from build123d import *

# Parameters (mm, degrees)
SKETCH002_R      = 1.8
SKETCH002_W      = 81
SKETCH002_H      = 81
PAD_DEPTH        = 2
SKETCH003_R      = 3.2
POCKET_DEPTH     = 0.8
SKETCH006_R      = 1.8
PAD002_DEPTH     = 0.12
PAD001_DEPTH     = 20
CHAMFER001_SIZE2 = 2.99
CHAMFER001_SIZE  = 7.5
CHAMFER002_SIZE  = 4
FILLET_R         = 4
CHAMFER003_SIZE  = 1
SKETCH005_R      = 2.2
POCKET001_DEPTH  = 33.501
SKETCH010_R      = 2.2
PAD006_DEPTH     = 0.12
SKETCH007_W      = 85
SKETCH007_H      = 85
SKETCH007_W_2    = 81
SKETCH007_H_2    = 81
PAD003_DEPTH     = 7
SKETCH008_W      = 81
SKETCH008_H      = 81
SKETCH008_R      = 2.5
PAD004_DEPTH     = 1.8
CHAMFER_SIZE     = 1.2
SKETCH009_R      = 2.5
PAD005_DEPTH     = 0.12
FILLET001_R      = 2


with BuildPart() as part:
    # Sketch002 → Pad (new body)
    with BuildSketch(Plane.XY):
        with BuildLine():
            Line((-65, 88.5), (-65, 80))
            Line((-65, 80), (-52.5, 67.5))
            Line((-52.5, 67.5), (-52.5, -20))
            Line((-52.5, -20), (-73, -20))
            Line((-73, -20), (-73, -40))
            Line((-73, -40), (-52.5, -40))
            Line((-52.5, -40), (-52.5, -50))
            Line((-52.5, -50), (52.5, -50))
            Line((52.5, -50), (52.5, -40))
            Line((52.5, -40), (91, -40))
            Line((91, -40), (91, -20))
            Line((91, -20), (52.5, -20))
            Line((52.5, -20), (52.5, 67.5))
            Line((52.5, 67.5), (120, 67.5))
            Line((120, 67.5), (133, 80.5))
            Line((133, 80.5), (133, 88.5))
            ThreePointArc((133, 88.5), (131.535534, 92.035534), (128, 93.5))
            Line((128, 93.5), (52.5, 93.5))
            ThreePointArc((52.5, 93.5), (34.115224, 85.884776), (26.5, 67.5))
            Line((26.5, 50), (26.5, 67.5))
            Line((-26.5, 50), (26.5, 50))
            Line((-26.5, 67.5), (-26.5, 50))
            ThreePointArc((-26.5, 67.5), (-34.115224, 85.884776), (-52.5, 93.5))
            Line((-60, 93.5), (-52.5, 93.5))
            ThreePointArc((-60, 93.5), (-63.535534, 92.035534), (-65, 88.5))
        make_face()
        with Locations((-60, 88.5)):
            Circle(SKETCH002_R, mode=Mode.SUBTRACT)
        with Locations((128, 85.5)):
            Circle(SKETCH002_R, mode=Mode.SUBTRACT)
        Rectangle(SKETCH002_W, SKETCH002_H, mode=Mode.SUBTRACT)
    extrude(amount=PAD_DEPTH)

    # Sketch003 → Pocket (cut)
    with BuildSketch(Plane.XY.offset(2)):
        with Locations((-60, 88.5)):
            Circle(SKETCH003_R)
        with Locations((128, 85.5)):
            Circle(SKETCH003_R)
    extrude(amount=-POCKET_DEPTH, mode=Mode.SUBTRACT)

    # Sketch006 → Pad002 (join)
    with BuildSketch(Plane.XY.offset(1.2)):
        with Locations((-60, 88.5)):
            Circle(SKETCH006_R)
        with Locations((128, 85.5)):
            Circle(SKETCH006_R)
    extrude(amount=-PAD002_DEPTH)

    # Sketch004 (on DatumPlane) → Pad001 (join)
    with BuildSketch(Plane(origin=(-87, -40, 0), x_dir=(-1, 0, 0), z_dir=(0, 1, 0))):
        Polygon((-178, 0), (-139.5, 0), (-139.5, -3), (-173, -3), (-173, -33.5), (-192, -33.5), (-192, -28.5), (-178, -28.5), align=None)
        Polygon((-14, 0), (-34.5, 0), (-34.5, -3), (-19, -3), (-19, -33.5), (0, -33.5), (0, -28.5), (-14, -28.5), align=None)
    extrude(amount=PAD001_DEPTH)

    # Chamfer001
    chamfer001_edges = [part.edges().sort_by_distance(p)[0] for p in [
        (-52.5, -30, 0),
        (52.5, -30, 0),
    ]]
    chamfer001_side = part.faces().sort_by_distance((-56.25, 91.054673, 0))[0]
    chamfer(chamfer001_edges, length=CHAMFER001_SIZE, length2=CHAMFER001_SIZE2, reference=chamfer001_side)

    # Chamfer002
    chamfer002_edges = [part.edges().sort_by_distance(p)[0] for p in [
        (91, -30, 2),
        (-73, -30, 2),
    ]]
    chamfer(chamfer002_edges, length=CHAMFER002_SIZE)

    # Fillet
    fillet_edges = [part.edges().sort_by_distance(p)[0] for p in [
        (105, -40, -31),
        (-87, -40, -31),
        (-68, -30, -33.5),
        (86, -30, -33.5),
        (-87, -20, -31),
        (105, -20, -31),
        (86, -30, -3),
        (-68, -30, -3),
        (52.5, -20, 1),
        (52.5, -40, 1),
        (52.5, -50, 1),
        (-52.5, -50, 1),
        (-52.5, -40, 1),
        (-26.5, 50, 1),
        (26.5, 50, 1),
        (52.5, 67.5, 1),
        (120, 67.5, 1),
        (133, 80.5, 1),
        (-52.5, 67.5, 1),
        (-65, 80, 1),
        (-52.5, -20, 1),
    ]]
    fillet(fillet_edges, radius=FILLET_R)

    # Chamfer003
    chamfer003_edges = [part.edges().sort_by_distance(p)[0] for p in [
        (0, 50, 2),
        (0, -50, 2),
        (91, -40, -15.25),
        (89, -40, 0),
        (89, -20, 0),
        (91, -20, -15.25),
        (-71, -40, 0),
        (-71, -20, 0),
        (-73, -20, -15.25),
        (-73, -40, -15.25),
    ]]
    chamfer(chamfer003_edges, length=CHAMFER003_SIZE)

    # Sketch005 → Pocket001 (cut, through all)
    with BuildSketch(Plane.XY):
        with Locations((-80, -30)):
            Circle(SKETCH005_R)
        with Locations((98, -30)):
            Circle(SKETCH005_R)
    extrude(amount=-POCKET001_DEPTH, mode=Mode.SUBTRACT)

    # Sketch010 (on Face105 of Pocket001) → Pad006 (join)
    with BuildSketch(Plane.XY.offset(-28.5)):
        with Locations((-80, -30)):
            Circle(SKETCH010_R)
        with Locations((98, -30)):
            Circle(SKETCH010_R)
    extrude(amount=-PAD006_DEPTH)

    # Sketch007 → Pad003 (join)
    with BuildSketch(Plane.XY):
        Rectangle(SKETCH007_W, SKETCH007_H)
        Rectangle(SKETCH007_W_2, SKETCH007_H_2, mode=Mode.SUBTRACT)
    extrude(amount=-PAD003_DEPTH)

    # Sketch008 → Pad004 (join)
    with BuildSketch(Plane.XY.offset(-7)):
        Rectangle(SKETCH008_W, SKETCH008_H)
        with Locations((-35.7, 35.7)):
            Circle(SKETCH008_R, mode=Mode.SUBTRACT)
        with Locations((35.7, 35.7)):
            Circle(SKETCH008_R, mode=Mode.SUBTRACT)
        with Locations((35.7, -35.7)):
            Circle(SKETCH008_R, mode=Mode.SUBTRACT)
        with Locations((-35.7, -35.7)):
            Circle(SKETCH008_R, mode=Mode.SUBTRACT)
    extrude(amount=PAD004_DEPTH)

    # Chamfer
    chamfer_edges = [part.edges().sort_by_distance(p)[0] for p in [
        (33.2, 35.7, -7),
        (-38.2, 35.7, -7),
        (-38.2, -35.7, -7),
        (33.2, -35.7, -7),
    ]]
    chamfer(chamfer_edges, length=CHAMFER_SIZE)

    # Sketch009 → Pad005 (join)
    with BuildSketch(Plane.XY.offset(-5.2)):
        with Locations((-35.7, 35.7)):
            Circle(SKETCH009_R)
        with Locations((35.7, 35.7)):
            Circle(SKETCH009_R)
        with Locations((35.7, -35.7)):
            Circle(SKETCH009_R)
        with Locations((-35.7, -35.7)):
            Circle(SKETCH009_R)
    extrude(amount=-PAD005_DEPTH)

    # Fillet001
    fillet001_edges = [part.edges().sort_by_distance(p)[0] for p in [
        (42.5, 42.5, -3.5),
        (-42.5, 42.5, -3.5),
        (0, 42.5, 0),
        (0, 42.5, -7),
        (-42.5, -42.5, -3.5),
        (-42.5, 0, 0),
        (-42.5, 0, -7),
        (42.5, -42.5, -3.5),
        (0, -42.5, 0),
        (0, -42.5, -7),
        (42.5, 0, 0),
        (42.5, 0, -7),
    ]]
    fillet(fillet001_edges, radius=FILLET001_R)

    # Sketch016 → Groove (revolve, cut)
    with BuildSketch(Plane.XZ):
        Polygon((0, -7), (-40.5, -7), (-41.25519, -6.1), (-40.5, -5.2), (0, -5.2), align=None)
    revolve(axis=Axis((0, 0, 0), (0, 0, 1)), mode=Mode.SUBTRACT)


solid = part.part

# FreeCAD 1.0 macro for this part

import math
import FreeCAD as App
import Part
import Sketcher
from FreeCAD import Vector
Q = App.Units.Quantity


def edges_at(feature, points):
    """Names of the edges that pass closest to the given points."""
    edges = feature.Shape.Edges
    near = lambda p: min(range(len(edges)), key=lambda i: edges[i].distToShape(Part.Vertex(*p))[0])
    return sorted({f"Edge{near(p) + 1}" for p in points})


def add_polygon(sketch, points):
    """Adds a closed chain of lines whose ends are joined by coincident constraints."""
    first, n = sketch.GeometryCount, len(points)
    for a, b in zip(points, points[1:] + points[:1]):
        sketch.addGeometry(Part.LineSegment(App.Vector(*a, 0), App.Vector(*b, 0)), False)
    for i in range(n):
        sketch.addConstraint(Sketcher.Constraint("Coincident", first + i, 2, first + (i + 1) % n, 1))

doc = App.newDocument("Part")
params = doc.addObject("Spreadsheet::Sheet", "Params")
for row, (alias, value) in enumerate([
    ("sketch1_radius", "5 mm"),
    ("sketch1_radius2", "26.000001 mm"),
    ("sketch1_diameter", "3.6 mm"),
    ("sketch1_width", "105 mm"),
    ("sketch1_width2", "81 mm"),
    ("pad1_length", "2 mm"),
    ("sketch2_diameter", "6.4 mm"),
    ("pocket1_length", "0.8 mm"),
    ("sketch3_diameter", "3.6 mm"),
    ("pad2_length", "0.12 mm"),
    ("sketch4_width", "14 mm"),
    ("sketch4_width2", "19 mm"),
    ("sketch4_height", "5 mm"),
    ("sketch4_height2", "3 mm"),
    ("sketch4_width3", "38.5 mm"),
    ("pad3_length", "20 mm"),
    ("chamfer_size", "7.5 mm"),
    ("chamfer_size2", "2.99 mm"),
    ("chamfer2_size", "4 mm"),
    ("fillet_radius", "4 mm"),
    ("chamfer3_size", "1 mm"),
    ("sketch5_diameter", "4.4 mm"),
    ("sketch6_diameter", "4.4 mm"),
    ("pad4_length", "0.12 mm"),
    ("sketch7_width", "85 mm"),
    ("sketch7_width2", "81 mm"),
    ("pad5_length", "7 mm"),
    ("sketch8_diameter", "5 mm"),
    ("sketch8_width", "81 mm"),
    ("pad6_length", "1.8 mm"),
    ("chamfer4_size", "1.2 mm"),
    ("sketch9_diameter", "5 mm"),
    ("pad7_length", "0.12 mm"),
    ("fillet2_radius", "2 mm"),
    ("sketch10_width", "40.5 mm"),
    ("sketch10_height", "1.8 mm"),
    ("groove_angle", "360 deg"),
], start=1):
    params.set(f"A{row}", alias)
    params.set(f"B{row}", "=" + value)
    params.setAlias(f"B{row}", alias)

body = doc.addObject("PartDesign::Body", "Body")

# Sketch on XY plane
sketch1 = body.newObject("Sketcher::SketchObject", "Sketch")
sketch1.AttachmentSupport = (doc.getObject("XY_Plane"), [""])
sketch1.MapMode = "FlatFace"
sketch1.addGeometry(Part.LineSegment(Vector(-65, 88.5, 0), Vector(-65, 80, 0)), False)  # 0
sketch1.addGeometry(Part.LineSegment(Vector(-65, 80, 0), Vector(-52.5, 67.5, 0)), False)  # 1
sketch1.addGeometry(Part.LineSegment(Vector(-52.5, 67.5, 0), Vector(-52.5, -20, 0)), False)  # 2
sketch1.addGeometry(Part.LineSegment(Vector(-52.5, -20, 0), Vector(-73, -20, 0)), False)  # 3
sketch1.addGeometry(Part.LineSegment(Vector(-73, -20, 0), Vector(-73, -40, 0)), False)  # 4
sketch1.addGeometry(Part.LineSegment(Vector(-73, -40, 0), Vector(-52.5, -40, 0)), False)  # 5
sketch1.addGeometry(Part.LineSegment(Vector(-52.5, -40, 0), Vector(-52.5, -50, 0)), False)  # 6
sketch1.addGeometry(Part.LineSegment(Vector(-52.5, -50, 0), Vector(52.5, -50, 0)), False)  # 7
sketch1.addGeometry(Part.LineSegment(Vector(52.5, -50, 0), Vector(52.5, -40, 0)), False)  # 8
sketch1.addGeometry(Part.LineSegment(Vector(52.5, -40, 0), Vector(91, -40, 0)), False)  # 9
sketch1.addGeometry(Part.LineSegment(Vector(91, -40, 0), Vector(91, -20, 0)), False)  # 10
sketch1.addGeometry(Part.LineSegment(Vector(91, -20, 0), Vector(52.5, -20, 0)), False)  # 11
sketch1.addGeometry(Part.LineSegment(Vector(52.5, -20, 0), Vector(52.5, 67.5, 0)), False)  # 12
sketch1.addGeometry(Part.LineSegment(Vector(52.5, 67.5, 0), Vector(120, 67.5, 0)), False)  # 13
sketch1.addGeometry(Part.LineSegment(Vector(120, 67.5, 0), Vector(133, 80.5, 0)), False)  # 14
sketch1.addGeometry(Part.LineSegment(Vector(133, 80.5, 0), Vector(133, 88.5, 0)), False)  # 15
sketch1.addGeometry(Part.ArcOfCircle(Part.Circle(Vector(128, 88.5, 0), Vector(0, 0, 1), 5), math.radians(-0.000004), math.radians(90.000004)), False)  # 16
sketch1.addGeometry(Part.LineSegment(Vector(128, 93.5, 0), Vector(52.5, 93.5, 0)), False)  # 17
sketch1.addGeometry(Part.ArcOfCircle(Part.Circle(Vector(52.500001, 67.499999, 0), Vector(0, 0, 1), 26.000001), math.radians(90.000002), math.radians(179.999998)), False)  # 18
sketch1.addGeometry(Part.LineSegment(Vector(26.5, 67.5, 0), Vector(26.5, 50, 0)), False)  # 19
sketch1.addGeometry(Part.LineSegment(Vector(26.5, 50, 0), Vector(-26.5, 50, 0)), False)  # 20
sketch1.addGeometry(Part.LineSegment(Vector(-26.5, 50, 0), Vector(-26.5, 67.5, 0)), False)  # 21
sketch1.addGeometry(Part.ArcOfCircle(Part.Circle(Vector(-52.500001, 67.499999, 0), Vector(0, 0, 1), 26.000001), math.radians(0.000002), math.radians(89.999998)), False)  # 22
sketch1.addGeometry(Part.LineSegment(Vector(-52.5, 93.5, 0), Vector(-60, 93.5, 0)), False)  # 23
sketch1.addGeometry(Part.ArcOfCircle(Part.Circle(Vector(-60, 88.5, 0), Vector(0, 0, 1), 5), math.radians(89.999996), math.radians(180.000004)), False)  # 24
add_polygon(sketch1, [(40.5, -40.5), (-40.5, -40.5), (-40.5, 40.5), (40.5, 40.5)])  # lines 25-28
sketch1.addGeometry(Part.Circle(Vector(-60, 88.5, 0), Vector(0, 0, 1), 1.8), False)  # 29
sketch1.addGeometry(Part.Circle(Vector(128, 85.5, 0), Vector(0, 0, 1), 1.8), False)  # 30
sketch1.addConstraint(Sketcher.Constraint("Coincident", 0, 2, 1, 1))
sketch1.addConstraint(Sketcher.Constraint("Coincident", 1, 2, 2, 1))
sketch1.addConstraint(Sketcher.Constraint("Coincident", 2, 2, 3, 1))
sketch1.addConstraint(Sketcher.Constraint("Coincident", 3, 2, 4, 1))
sketch1.addConstraint(Sketcher.Constraint("Coincident", 4, 2, 5, 1))
sketch1.addConstraint(Sketcher.Constraint("Coincident", 5, 2, 6, 1))
sketch1.addConstraint(Sketcher.Constraint("Coincident", 6, 2, 7, 1))
sketch1.addConstraint(Sketcher.Constraint("Coincident", 7, 2, 8, 1))
sketch1.addConstraint(Sketcher.Constraint("Coincident", 8, 2, 9, 1))
sketch1.addConstraint(Sketcher.Constraint("Coincident", 9, 2, 10, 1))
sketch1.addConstraint(Sketcher.Constraint("Coincident", 10, 2, 11, 1))
sketch1.addConstraint(Sketcher.Constraint("Coincident", 11, 2, 12, 1))
sketch1.addConstraint(Sketcher.Constraint("Coincident", 12, 2, 13, 1))
sketch1.addConstraint(Sketcher.Constraint("Coincident", 13, 2, 14, 1))
sketch1.addConstraint(Sketcher.Constraint("Coincident", 14, 2, 15, 1))
sketch1.addConstraint(Sketcher.Constraint("Tangent", 15, 2, 16, 1))
sketch1.addConstraint(Sketcher.Constraint("Tangent", 16, 2, 17, 1))
sketch1.addConstraint(Sketcher.Constraint("Tangent", 17, 2, 18, 1))
sketch1.addConstraint(Sketcher.Constraint("Tangent", 18, 2, 19, 1))
sketch1.addConstraint(Sketcher.Constraint("Coincident", 19, 2, 20, 1))
sketch1.addConstraint(Sketcher.Constraint("Coincident", 20, 2, 21, 1))
sketch1.addConstraint(Sketcher.Constraint("Tangent", 21, 2, 22, 1))
sketch1.addConstraint(Sketcher.Constraint("Tangent", 22, 2, 23, 1))
sketch1.addConstraint(Sketcher.Constraint("Tangent", 23, 2, 24, 1))
sketch1.addConstraint(Sketcher.Constraint("Tangent", 24, 2, 0, 1))
sketch1.addConstraint(Sketcher.Constraint("Vertical", 0))
sketch1.addConstraint(Sketcher.Constraint("Vertical", 2))
sketch1.addConstraint(Sketcher.Constraint("Horizontal", 3))
sketch1.addConstraint(Sketcher.Constraint("Vertical", 4))
sketch1.addConstraint(Sketcher.Constraint("Horizontal", 5))
sketch1.addConstraint(Sketcher.Constraint("Vertical", 6))
sketch1.addConstraint(Sketcher.Constraint("Horizontal", 7))
sketch1.addConstraint(Sketcher.Constraint("Vertical", 8))
sketch1.addConstraint(Sketcher.Constraint("Horizontal", 9))
sketch1.addConstraint(Sketcher.Constraint("Vertical", 10))
sketch1.addConstraint(Sketcher.Constraint("Horizontal", 11))
sketch1.addConstraint(Sketcher.Constraint("Vertical", 12))
sketch1.addConstraint(Sketcher.Constraint("Horizontal", 13))
sketch1.addConstraint(Sketcher.Constraint("Vertical", 15))
sketch1.addConstraint(Sketcher.Constraint("Horizontal", 17))
sketch1.addConstraint(Sketcher.Constraint("Vertical", 19))
sketch1.addConstraint(Sketcher.Constraint("Horizontal", 20))
sketch1.addConstraint(Sketcher.Constraint("Vertical", 21))
sketch1.addConstraint(Sketcher.Constraint("Horizontal", 23))
sketch1.addConstraint(Sketcher.Constraint("Horizontal", 25))
sketch1.addConstraint(Sketcher.Constraint("Vertical", 26))
sketch1.addConstraint(Sketcher.Constraint("Horizontal", 27))
sketch1.addConstraint(Sketcher.Constraint("Vertical", 28))
sketch1.addConstraint(Sketcher.Constraint("Coincident", 29, 3, 24, 3))
sketch1.addConstraint(Sketcher.Constraint("Coincident", 1, 2, 22, 3))
sketch1.addConstraint(Sketcher.Constraint("Coincident", 12, 2, 18, 3))
sketch1.addConstraint(Sketcher.Constraint("Equal", 18, 22))
sketch1.addConstraint(Sketcher.Constraint("Equal", 16, 24))
sketch1.addConstraint(Sketcher.Constraint("Equal", 29, 30))
sketch1.addConstraint(Sketcher.Constraint("Symmetric", 25, 2, 27, 2, -1, 1))
sketch1.addConstraint(Sketcher.Constraint("Symmetric", 18, 3, 22, 3, -2))
sketch1.addConstraint(Sketcher.Constraint("Symmetric", 5, 2, 8, 2, -2))
sketch1.addConstraint(Sketcher.Constraint("Perpendicular", 1, 14))
sketch1.addConstraint(Sketcher.Constraint("Horizontal", 3, 2, 10, 2))
sketch1.addConstraint(Sketcher.Constraint("Vertical", 16, 3, 30, 3))
sketch1.addConstraint(Sketcher.Constraint("Vertical", 2, 2, 5, 2))
sketch1.addConstraint(Sketcher.Constraint("Equal", 27, 26))
sketch1.addConstraint(Sketcher.Constraint("Radius", 16, Q("5 mm")))
sketch1.addConstraint(Sketcher.Constraint("Radius", 18, Q("26.000001 mm")))
sketch1.addConstraint(Sketcher.Constraint("Diameter", 29, Q("3.6 mm")))
sketch1.addConstraint(Sketcher.Constraint("DistanceX", 7, 1, 7, 2, Q("105 mm")))
sketch1.addConstraint(Sketcher.Constraint("DistanceX", 25, 2, 25, 1, Q("81 mm")))
sketch1.addConstraint(Sketcher.Constraint("DistanceY", 4, 2, 4, 1, Q("20 mm")))
sketch1.addConstraint(Sketcher.Constraint("DistanceY", 6, 2, 6, 1, Q("10 mm")))
sketch1.addConstraint(Sketcher.Constraint("DistanceY", 15, 1, 15, 2, Q("8 mm")))
sketch1.addConstraint(Sketcher.Constraint("Angle", 1, Q("-45 deg")))
sketch1.addConstraint(Sketcher.Constraint("DistanceX", 3, 2, 3, 1, Q("20.5 mm")))
sketch1.addConstraint(Sketcher.Constraint("DistanceX", 9, 1, 9, 2, Q("38.5 mm")))
sketch1.addConstraint(Sketcher.Constraint("DistanceX", 13, 1, 13, 2, Q("67.5 mm")))
sketch1.addConstraint(Sketcher.Constraint("DistanceX", 23, 2, 23, 1, Q("7.5 mm")))
sketch1.addConstraint(Sketcher.Constraint("DistanceY", 2, 2, 2, 1, Q("87.5 mm")))
sketch1.addConstraint(Sketcher.Constraint("DistanceY", 19, 2, 19, 1, Q("17.5 mm")))
sketch1.addConstraint(Sketcher.Constraint("DistanceY", -1, 1, 0, 2, Q("80 mm")))
sketch1.addConstraint(Sketcher.Constraint("DistanceY", 30, 3, 16, 3, Q("3 mm")))
sketch1.setExpression("Constraints[66]", "Params.sketch1_radius")
sketch1.setExpression("Constraints[67]", "Params.sketch1_radius2")
sketch1.setExpression("Constraints[68]", "Params.sketch1_diameter")
sketch1.setExpression("Constraints[69]", "Params.sketch1_width")
sketch1.setExpression("Constraints[70]", "Params.sketch1_width2")
pad1 = body.newObject("PartDesign::Pad", "Pad")
pad1.Profile = sketch1
pad1.setExpression("Length", "Params.pad1_length")

# Sketch on XY plane
sketch2 = body.newObject("Sketcher::SketchObject", "Sketch001")
sketch2.AttachmentSupport = (doc.getObject("XY_Plane"), [""])
sketch2.MapMode = "FlatFace"
sketch2.AttachmentOffset = App.Placement(Vector(0, 0, 2), App.Rotation())
sketch2.addGeometry(Part.Circle(Vector(-60, 88.5, 0), Vector(0, 0, 1), 3.2), False)
sketch2.addGeometry(Part.Circle(Vector(128, 85.5, 0), Vector(0, 0, 1), 3.2), False)
sketch2.addConstraint(Sketcher.Constraint("Equal", 0, 1))
sketch2.addConstraint(Sketcher.Constraint("Diameter", 0, Q("6.4 mm")))
sketch2.addConstraint(Sketcher.Constraint("DistanceX", 0, 3, -1, 1, Q("60 mm")))
sketch2.addConstraint(Sketcher.Constraint("DistanceX", -1, 1, 1, 3, Q("128 mm")))
sketch2.addConstraint(Sketcher.Constraint("DistanceY", 1, 3, 0, 3, Q("3 mm")))
sketch2.addConstraint(Sketcher.Constraint("DistanceY", -1, 1, 0, 3, Q("88.5 mm")))
sketch2.setExpression("Constraints[1]", "Params.sketch2_diameter")
pocket1 = body.newObject("PartDesign::Pocket", "Pocket")
pocket1.Profile = sketch2
pocket1.setExpression("Length", "Params.pocket1_length")

# Sketch on XY plane
sketch3 = body.newObject("Sketcher::SketchObject", "Sketch002")
sketch3.AttachmentSupport = (doc.getObject("XY_Plane"), [""])
sketch3.MapMode = "FlatFace"
sketch3.AttachmentOffset = App.Placement(Vector(0, 0, 1.2), App.Rotation())
sketch3.addGeometry(Part.Circle(Vector(-60, 88.5, 0), Vector(0, 0, 1), 1.8), False)
sketch3.addGeometry(Part.Circle(Vector(128, 85.5, 0), Vector(0, 0, 1), 1.8), False)
sketch3.addConstraint(Sketcher.Constraint("Equal", 0, 1))
sketch3.addConstraint(Sketcher.Constraint("Diameter", 0, Q("3.6 mm")))
sketch3.addConstraint(Sketcher.Constraint("DistanceX", 0, 3, -1, 1, Q("60 mm")))
sketch3.addConstraint(Sketcher.Constraint("DistanceX", -1, 1, 1, 3, Q("128 mm")))
sketch3.addConstraint(Sketcher.Constraint("DistanceY", 1, 3, 0, 3, Q("3 mm")))
sketch3.addConstraint(Sketcher.Constraint("DistanceY", -1, 1, 0, 3, Q("88.5 mm")))
sketch3.setExpression("Constraints[1]", "Params.sketch3_diameter")
pad2 = body.newObject("PartDesign::Pad", "Pad001")
pad2.Profile = sketch3
pad2.setExpression("Length", "Params.pad2_length")
pad2.Reversed = True

# Sketch on XZ plane
sketch4 = body.newObject("Sketcher::SketchObject", "Sketch003")
sketch4.AttachmentSupport = (doc.getObject("XZ_Plane"), [""])
sketch4.MapMode = "FlatFace"
sketch4.AttachmentOffset = App.Placement(Vector(0, 0, 40), App.Rotation())
add_polygon(sketch4, [(52.5, 0), (91, 0), (91, -28.5), (105, -28.5), (105, -33.5), (86, -33.5), (86, -3), (52.5, -3)])  # lines 0-7
add_polygon(sketch4, [(-73, 0), (-52.5, 0), (-52.5, -3), (-68, -3), (-68, -33.5), (-87, -33.5), (-87, -28.5), (-73, -28.5)])  # lines 8-15
sketch4.addConstraint(Sketcher.Constraint("Horizontal", 0))
sketch4.addConstraint(Sketcher.Constraint("Vertical", 1))
sketch4.addConstraint(Sketcher.Constraint("Horizontal", 2))
sketch4.addConstraint(Sketcher.Constraint("Vertical", 3))
sketch4.addConstraint(Sketcher.Constraint("Horizontal", 4))
sketch4.addConstraint(Sketcher.Constraint("Vertical", 5))
sketch4.addConstraint(Sketcher.Constraint("Horizontal", 6))
sketch4.addConstraint(Sketcher.Constraint("Vertical", 7))
sketch4.addConstraint(Sketcher.Constraint("Horizontal", 8))
sketch4.addConstraint(Sketcher.Constraint("Vertical", 9))
sketch4.addConstraint(Sketcher.Constraint("Horizontal", 10))
sketch4.addConstraint(Sketcher.Constraint("Vertical", 11))
sketch4.addConstraint(Sketcher.Constraint("Horizontal", 12))
sketch4.addConstraint(Sketcher.Constraint("Vertical", 13))
sketch4.addConstraint(Sketcher.Constraint("Horizontal", 14))
sketch4.addConstraint(Sketcher.Constraint("Vertical", 15))
sketch4.addConstraint(Sketcher.Constraint("Symmetric", 7, 2, 8, 2, -1, 1))
sketch4.addConstraint(Sketcher.Constraint("PointOnObject", 0, 2, -1))
sketch4.addConstraint(Sketcher.Constraint("Horizontal", 6, 2, 9, 2))
sketch4.addConstraint(Sketcher.Constraint("Horizontal", 4, 2, 11, 2))
sketch4.addConstraint(Sketcher.Constraint("Horizontal", 2, 2, 13, 2))
sketch4.addConstraint(Sketcher.Constraint("Equal", 4, 12))
sketch4.addConstraint(Sketcher.Constraint("Equal", 2, 14))
sketch4.addConstraint(Sketcher.Constraint("DistanceX", 2, 1, 2, 2, Q("14 mm")))
sketch4.addConstraint(Sketcher.Constraint("DistanceX", 4, 2, 4, 1, Q("19 mm")))
sketch4.addConstraint(Sketcher.Constraint("DistanceY", 3, 2, 3, 1, Q("5 mm")))
sketch4.addConstraint(Sketcher.Constraint("DistanceY", 7, 1, 7, 2, Q("3 mm")))
sketch4.addConstraint(Sketcher.Constraint("DistanceX", 0, 1, 0, 2, Q("38.5 mm")))
sketch4.addConstraint(Sketcher.Constraint("DistanceX", 8, 1, 8, 2, Q("20.5 mm")))
sketch4.addConstraint(Sketcher.Constraint("DistanceY", 1, 2, 1, 1, Q("28.5 mm")))
sketch4.addConstraint(Sketcher.Constraint("DistanceX", -1, 1, 0, 2, Q("91 mm")))
sketch4.setExpression("Constraints[39]", "Params.sketch4_width")
sketch4.setExpression("Constraints[40]", "Params.sketch4_width2")
sketch4.setExpression("Constraints[41]", "Params.sketch4_height")
sketch4.setExpression("Constraints[42]", "Params.sketch4_height2")
sketch4.setExpression("Constraints[43]", "Params.sketch4_width3")
pad3 = body.newObject("PartDesign::Pad", "Pad002")
pad3.Profile = sketch4
pad3.setExpression("Length", "Params.pad3_length")
pad3.Reversed = True
doc.recompute()

chamfer = body.newObject("PartDesign::Chamfer", "Chamfer")
chamfer.Base = (pad3, edges_at(pad3, [(-52.5, -30, 0), (52.5, -30, 0)]))
chamfer.ChamferType = "Two distances"
chamfer.setExpression("Size", "Params.chamfer_size")
chamfer.setExpression("Size2", "Params.chamfer_size2")
doc.recompute()

chamfer2 = body.newObject("PartDesign::Chamfer", "Chamfer001")
chamfer2.Base = (chamfer, edges_at(chamfer, [(91, -30, 2), (-73, -30, 2)]))
chamfer2.setExpression("Size", "Params.chamfer2_size")
doc.recompute()

fillet = body.newObject("PartDesign::Fillet", "Fillet")
fillet.Base = (chamfer2, edges_at(chamfer2, [
    (105, -40, -31),
    (-87, -40, -31),
    (-68, -30, -33.5),
    (86, -30, -33.5),
    (-87, -20, -31),
    (105, -20, -31),
    (86, -30, -3),
    (-68, -30, -3),
    (52.5, -20, 1),
    (52.5, -40, 1),
    (52.5, -50, 1),
    (-52.5, -50, 1),
    (-52.5, -40, 1),
    (-26.5, 50, 1),
    (26.5, 50, 1),
    (52.5, 67.5, 1),
    (120, 67.5, 1),
    (133, 80.5, 1),
    (-52.5, 67.5, 1),
    (-65, 80, 1),
    (-52.5, -20, 1),
]))
fillet.setExpression("Radius", "Params.fillet_radius")
doc.recompute()

chamfer3 = body.newObject("PartDesign::Chamfer", "Chamfer002")
chamfer3.Base = (fillet, edges_at(fillet, [
    (0, 50, 2),
    (0, -50, 2),
    (91, -40, -15.25),
    (89, -40, 0),
    (89, -20, 0),
    (91, -20, -15.25),
    (-71, -40, 0),
    (-71, -20, 0),
    (-73, -20, -15.25),
    (-73, -40, -15.25),
]))
chamfer3.setExpression("Size", "Params.chamfer3_size")

# Sketch on XY plane
sketch5 = body.newObject("Sketcher::SketchObject", "Sketch004")
sketch5.AttachmentSupport = (doc.getObject("XY_Plane"), [""])
sketch5.MapMode = "FlatFace"
sketch5.addGeometry(Part.Circle(Vector(-80, -30, 0), Vector(0, 0, 1), 2.2), False)
sketch5.addGeometry(Part.Circle(Vector(98, -30, 0), Vector(0, 0, 1), 2.2), False)
sketch5.addConstraint(Sketcher.Constraint("Equal", 0, 1))
sketch5.addConstraint(Sketcher.Constraint("Horizontal", 0, 3, 1, 3))
sketch5.addConstraint(Sketcher.Constraint("Diameter", 0, Q("4.4 mm")))
sketch5.addConstraint(Sketcher.Constraint("DistanceX", 0, 3, -1, 1, Q("80 mm")))
sketch5.addConstraint(Sketcher.Constraint("DistanceY", 0, 3, -1, 1, Q("30 mm")))
sketch5.addConstraint(Sketcher.Constraint("DistanceX", -1, 1, 1, 3, Q("98 mm")))
sketch5.setExpression("Constraints[2]", "Params.sketch5_diameter")
pocket2 = body.newObject("PartDesign::Pocket", "Pocket001")
pocket2.Profile = sketch5
pocket2.Type = "ThroughAll"

# Sketch on XY plane
sketch6 = body.newObject("Sketcher::SketchObject", "Sketch005")
sketch6.AttachmentSupport = (doc.getObject("XY_Plane"), [""])
sketch6.MapMode = "FlatFace"
sketch6.AttachmentOffset = App.Placement(Vector(0, 0, -28.5), App.Rotation())
sketch6.addGeometry(Part.Circle(Vector(-80, -30, 0), Vector(0, 0, 1), 2.2), False)
sketch6.addGeometry(Part.Circle(Vector(98, -30, 0), Vector(0, 0, 1), 2.2), False)
sketch6.addConstraint(Sketcher.Constraint("Equal", 0, 1))
sketch6.addConstraint(Sketcher.Constraint("Horizontal", 0, 3, 1, 3))
sketch6.addConstraint(Sketcher.Constraint("Diameter", 0, Q("4.4 mm")))
sketch6.addConstraint(Sketcher.Constraint("DistanceX", 0, 3, -1, 1, Q("80 mm")))
sketch6.addConstraint(Sketcher.Constraint("DistanceY", 0, 3, -1, 1, Q("30 mm")))
sketch6.addConstraint(Sketcher.Constraint("DistanceX", -1, 1, 1, 3, Q("98 mm")))
sketch6.setExpression("Constraints[2]", "Params.sketch6_diameter")
pad4 = body.newObject("PartDesign::Pad", "Pad003")
pad4.Profile = sketch6
pad4.setExpression("Length", "Params.pad4_length")
pad4.Reversed = True

# Sketch on XY plane
sketch7 = body.newObject("Sketcher::SketchObject", "Sketch006")
sketch7.AttachmentSupport = (doc.getObject("XY_Plane"), [""])
sketch7.MapMode = "FlatFace"
add_polygon(sketch7, [(-42.5, 42.5), (-42.5, -42.5), (42.5, -42.5), (42.5, 42.5)])  # lines 0-3
add_polygon(sketch7, [(40.5, -40.5), (-40.5, -40.5), (-40.5, 40.5), (40.5, 40.5)])  # lines 4-7
sketch7.addConstraint(Sketcher.Constraint("Vertical", 0))
sketch7.addConstraint(Sketcher.Constraint("Horizontal", 1))
sketch7.addConstraint(Sketcher.Constraint("Vertical", 2))
sketch7.addConstraint(Sketcher.Constraint("Horizontal", 3))
sketch7.addConstraint(Sketcher.Constraint("Horizontal", 4))
sketch7.addConstraint(Sketcher.Constraint("Vertical", 5))
sketch7.addConstraint(Sketcher.Constraint("Horizontal", 6))
sketch7.addConstraint(Sketcher.Constraint("Vertical", 7))
sketch7.addConstraint(Sketcher.Constraint("Symmetric", 0, 2, 2, 2, -1, 1))
sketch7.addConstraint(Sketcher.Constraint("Symmetric", 4, 2, 6, 2, -1, 1))
sketch7.addConstraint(Sketcher.Constraint("Equal", 3, 0))
sketch7.addConstraint(Sketcher.Constraint("Equal", 6, 5))
sketch7.addConstraint(Sketcher.Constraint("DistanceX", 1, 1, 1, 2, Q("85 mm")))
sketch7.addConstraint(Sketcher.Constraint("DistanceX", 4, 2, 4, 1, Q("81 mm")))
sketch7.setExpression("Constraints[20]", "Params.sketch7_width")
sketch7.setExpression("Constraints[21]", "Params.sketch7_width2")
pad5 = body.newObject("PartDesign::Pad", "Pad004")
pad5.Profile = sketch7
pad5.setExpression("Length", "Params.pad5_length")
pad5.Reversed = True

# Sketch on XY plane
sketch8 = body.newObject("Sketcher::SketchObject", "Sketch007")
sketch8.AttachmentSupport = (doc.getObject("XY_Plane"), [""])
sketch8.MapMode = "FlatFace"
sketch8.AttachmentOffset = App.Placement(Vector(0, 0, -7), App.Rotation())
add_polygon(sketch8, [(-40.5, 40.5), (-40.5, -40.5), (40.5, -40.5), (40.5, 40.5)])  # lines 0-3
sketch8.addGeometry(Part.Circle(Vector(-35.7, -35.7, 0), Vector(0, 0, 1), 2.5), False)  # 4
sketch8.addGeometry(Part.Circle(Vector(35.7, -35.7, 0), Vector(0, 0, 1), 2.5), False)  # 5
sketch8.addGeometry(Part.Circle(Vector(-35.7, 35.7, 0), Vector(0, 0, 1), 2.5), False)  # 6
sketch8.addGeometry(Part.Circle(Vector(35.7, 35.7, 0), Vector(0, 0, 1), 2.5), False)  # 7
sketch8.addConstraint(Sketcher.Constraint("Vertical", 0))
sketch8.addConstraint(Sketcher.Constraint("Horizontal", 1))
sketch8.addConstraint(Sketcher.Constraint("Vertical", 2))
sketch8.addConstraint(Sketcher.Constraint("Horizontal", 3))
sketch8.addConstraint(Sketcher.Constraint("Equal", 4, 5))
sketch8.addConstraint(Sketcher.Constraint("Equal", 5, 6))
sketch8.addConstraint(Sketcher.Constraint("Equal", 6, 7))
sketch8.addConstraint(Sketcher.Constraint("Symmetric", 5, 3, 6, 3, -1, 1))
sketch8.addConstraint(Sketcher.Constraint("Symmetric", 4, 3, 7, 3, -1, 1))
sketch8.addConstraint(Sketcher.Constraint("Symmetric", 0, 2, 2, 2, -1, 1))
sketch8.addConstraint(Sketcher.Constraint("Symmetric", 4, 3, 5, 3, -2))
sketch8.addConstraint(Sketcher.Constraint("Equal", 3, 0))
sketch8.addConstraint(Sketcher.Constraint("Diameter", 4, Q("5 mm")))
sketch8.addConstraint(Sketcher.Constraint("DistanceX", 1, 1, 1, 2, Q("81 mm")))
sketch8.addConstraint(Sketcher.Constraint("DistanceX", 4, 3, -1, 1, Q("35.7 mm")))
sketch8.addConstraint(Sketcher.Constraint("DistanceY", 4, 3, -1, 1, Q("35.7 mm")))
sketch8.setExpression("Constraints[16]", "Params.sketch8_diameter")
sketch8.setExpression("Constraints[17]", "Params.sketch8_width")
pad6 = body.newObject("PartDesign::Pad", "Pad005")
pad6.Profile = sketch8
pad6.setExpression("Length", "Params.pad6_length")
doc.recompute()

chamfer4 = body.newObject("PartDesign::Chamfer", "Chamfer003")
chamfer4.Base = (pad6, edges_at(pad6, [
    (33.2, 35.7, -7),
    (-38.2, 35.7, -7),
    (-38.2, -35.7, -7),
    (33.2, -35.7, -7),
]))
chamfer4.setExpression("Size", "Params.chamfer4_size")

# Sketch on XY plane
sketch9 = body.newObject("Sketcher::SketchObject", "Sketch008")
sketch9.AttachmentSupport = (doc.getObject("XY_Plane"), [""])
sketch9.MapMode = "FlatFace"
sketch9.AttachmentOffset = App.Placement(Vector(0, 0, -5.2), App.Rotation())
sketch9.addGeometry(Part.Circle(Vector(-35.7, 35.7, 0), Vector(0, 0, 1), 2.5), False)
sketch9.addGeometry(Part.Circle(Vector(35.7, 35.7, 0), Vector(0, 0, 1), 2.5), False)
sketch9.addGeometry(Part.Circle(Vector(35.7, -35.7, 0), Vector(0, 0, 1), 2.5), False)
sketch9.addGeometry(Part.Circle(Vector(-35.7, -35.7, 0), Vector(0, 0, 1), 2.5), False)
sketch9.addConstraint(Sketcher.Constraint("Equal", 0, 1))
sketch9.addConstraint(Sketcher.Constraint("Equal", 1, 2))
sketch9.addConstraint(Sketcher.Constraint("Equal", 2, 3))
sketch9.addConstraint(Sketcher.Constraint("Symmetric", 0, 3, 2, 3, -1, 1))
sketch9.addConstraint(Sketcher.Constraint("Symmetric", 1, 3, 3, 3, -1, 1))
sketch9.addConstraint(Sketcher.Constraint("Symmetric", 0, 3, 1, 3, -2))
sketch9.addConstraint(Sketcher.Constraint("Diameter", 0, Q("5 mm")))
sketch9.addConstraint(Sketcher.Constraint("DistanceX", 0, 3, -1, 1, Q("35.7 mm")))
sketch9.addConstraint(Sketcher.Constraint("DistanceY", -1, 1, 0, 3, Q("35.7 mm")))
sketch9.setExpression("Constraints[6]", "Params.sketch9_diameter")
pad7 = body.newObject("PartDesign::Pad", "Pad006")
pad7.Profile = sketch9
pad7.setExpression("Length", "Params.pad7_length")
pad7.Reversed = True
doc.recompute()

fillet2 = body.newObject("PartDesign::Fillet", "Fillet001")
fillet2.Base = (pad7, edges_at(pad7, [
    (42.5, 42.5, -3.5),
    (-42.5, 42.5, -3.5),
    (0, 42.5, 0),
    (0, 42.5, -7),
    (-42.5, -42.5, -3.5),
    (-42.5, 0, 0),
    (-42.5, 0, -7),
    (42.5, -42.5, -3.5),
    (0, -42.5, 0),
    (0, -42.5, -7),
    (42.5, 0, 0),
    (42.5, 0, -7),
]))
fillet2.setExpression("Radius", "Params.fillet2_radius")

# Sketch on XZ plane
sketch10 = body.newObject("Sketcher::SketchObject", "Sketch009")
sketch10.AttachmentSupport = (doc.getObject("XZ_Plane"), [""])
sketch10.MapMode = "FlatFace"
add_polygon(sketch10, [(-40.5, -7), (0, -7), (0, -5.2), (-40.5, -5.2), (-41.25519, -6.1)])  # lines 0-4
sketch10.addConstraint(Sketcher.Constraint("Horizontal", 0))
sketch10.addConstraint(Sketcher.Constraint("Vertical", 1))
sketch10.addConstraint(Sketcher.Constraint("Horizontal", 2))
sketch10.addConstraint(Sketcher.Constraint("PointOnObject", 0, 2, -2))
sketch10.addConstraint(Sketcher.Constraint("Vertical", 2, 2, 4, 2))
sketch10.addConstraint(Sketcher.Constraint("Equal", 3, 4))
sketch10.addConstraint(Sketcher.Constraint("Angle", 3, Q("-130.000012 deg")))
sketch10.addConstraint(Sketcher.Constraint("DistanceX", 0, 1, 0, 2, Q("40.5 mm")))
sketch10.addConstraint(Sketcher.Constraint("DistanceY", 1, 1, 1, 2, Q("1.8 mm")))
sketch10.addConstraint(Sketcher.Constraint("DistanceY", 0, 2, -1, 1, Q("7 mm")))
sketch10.setExpression("Constraints[12]", "Params.sketch10_width")
sketch10.setExpression("Constraints[13]", "Params.sketch10_height")
groove = body.newObject("PartDesign::Groove", "Groove")
groove.Profile = sketch10
groove.ReferenceAxis = (sketch10, ["V_Axis"])
groove.setExpression("Angle", "Params.groove_angle")

doc.recompute()
